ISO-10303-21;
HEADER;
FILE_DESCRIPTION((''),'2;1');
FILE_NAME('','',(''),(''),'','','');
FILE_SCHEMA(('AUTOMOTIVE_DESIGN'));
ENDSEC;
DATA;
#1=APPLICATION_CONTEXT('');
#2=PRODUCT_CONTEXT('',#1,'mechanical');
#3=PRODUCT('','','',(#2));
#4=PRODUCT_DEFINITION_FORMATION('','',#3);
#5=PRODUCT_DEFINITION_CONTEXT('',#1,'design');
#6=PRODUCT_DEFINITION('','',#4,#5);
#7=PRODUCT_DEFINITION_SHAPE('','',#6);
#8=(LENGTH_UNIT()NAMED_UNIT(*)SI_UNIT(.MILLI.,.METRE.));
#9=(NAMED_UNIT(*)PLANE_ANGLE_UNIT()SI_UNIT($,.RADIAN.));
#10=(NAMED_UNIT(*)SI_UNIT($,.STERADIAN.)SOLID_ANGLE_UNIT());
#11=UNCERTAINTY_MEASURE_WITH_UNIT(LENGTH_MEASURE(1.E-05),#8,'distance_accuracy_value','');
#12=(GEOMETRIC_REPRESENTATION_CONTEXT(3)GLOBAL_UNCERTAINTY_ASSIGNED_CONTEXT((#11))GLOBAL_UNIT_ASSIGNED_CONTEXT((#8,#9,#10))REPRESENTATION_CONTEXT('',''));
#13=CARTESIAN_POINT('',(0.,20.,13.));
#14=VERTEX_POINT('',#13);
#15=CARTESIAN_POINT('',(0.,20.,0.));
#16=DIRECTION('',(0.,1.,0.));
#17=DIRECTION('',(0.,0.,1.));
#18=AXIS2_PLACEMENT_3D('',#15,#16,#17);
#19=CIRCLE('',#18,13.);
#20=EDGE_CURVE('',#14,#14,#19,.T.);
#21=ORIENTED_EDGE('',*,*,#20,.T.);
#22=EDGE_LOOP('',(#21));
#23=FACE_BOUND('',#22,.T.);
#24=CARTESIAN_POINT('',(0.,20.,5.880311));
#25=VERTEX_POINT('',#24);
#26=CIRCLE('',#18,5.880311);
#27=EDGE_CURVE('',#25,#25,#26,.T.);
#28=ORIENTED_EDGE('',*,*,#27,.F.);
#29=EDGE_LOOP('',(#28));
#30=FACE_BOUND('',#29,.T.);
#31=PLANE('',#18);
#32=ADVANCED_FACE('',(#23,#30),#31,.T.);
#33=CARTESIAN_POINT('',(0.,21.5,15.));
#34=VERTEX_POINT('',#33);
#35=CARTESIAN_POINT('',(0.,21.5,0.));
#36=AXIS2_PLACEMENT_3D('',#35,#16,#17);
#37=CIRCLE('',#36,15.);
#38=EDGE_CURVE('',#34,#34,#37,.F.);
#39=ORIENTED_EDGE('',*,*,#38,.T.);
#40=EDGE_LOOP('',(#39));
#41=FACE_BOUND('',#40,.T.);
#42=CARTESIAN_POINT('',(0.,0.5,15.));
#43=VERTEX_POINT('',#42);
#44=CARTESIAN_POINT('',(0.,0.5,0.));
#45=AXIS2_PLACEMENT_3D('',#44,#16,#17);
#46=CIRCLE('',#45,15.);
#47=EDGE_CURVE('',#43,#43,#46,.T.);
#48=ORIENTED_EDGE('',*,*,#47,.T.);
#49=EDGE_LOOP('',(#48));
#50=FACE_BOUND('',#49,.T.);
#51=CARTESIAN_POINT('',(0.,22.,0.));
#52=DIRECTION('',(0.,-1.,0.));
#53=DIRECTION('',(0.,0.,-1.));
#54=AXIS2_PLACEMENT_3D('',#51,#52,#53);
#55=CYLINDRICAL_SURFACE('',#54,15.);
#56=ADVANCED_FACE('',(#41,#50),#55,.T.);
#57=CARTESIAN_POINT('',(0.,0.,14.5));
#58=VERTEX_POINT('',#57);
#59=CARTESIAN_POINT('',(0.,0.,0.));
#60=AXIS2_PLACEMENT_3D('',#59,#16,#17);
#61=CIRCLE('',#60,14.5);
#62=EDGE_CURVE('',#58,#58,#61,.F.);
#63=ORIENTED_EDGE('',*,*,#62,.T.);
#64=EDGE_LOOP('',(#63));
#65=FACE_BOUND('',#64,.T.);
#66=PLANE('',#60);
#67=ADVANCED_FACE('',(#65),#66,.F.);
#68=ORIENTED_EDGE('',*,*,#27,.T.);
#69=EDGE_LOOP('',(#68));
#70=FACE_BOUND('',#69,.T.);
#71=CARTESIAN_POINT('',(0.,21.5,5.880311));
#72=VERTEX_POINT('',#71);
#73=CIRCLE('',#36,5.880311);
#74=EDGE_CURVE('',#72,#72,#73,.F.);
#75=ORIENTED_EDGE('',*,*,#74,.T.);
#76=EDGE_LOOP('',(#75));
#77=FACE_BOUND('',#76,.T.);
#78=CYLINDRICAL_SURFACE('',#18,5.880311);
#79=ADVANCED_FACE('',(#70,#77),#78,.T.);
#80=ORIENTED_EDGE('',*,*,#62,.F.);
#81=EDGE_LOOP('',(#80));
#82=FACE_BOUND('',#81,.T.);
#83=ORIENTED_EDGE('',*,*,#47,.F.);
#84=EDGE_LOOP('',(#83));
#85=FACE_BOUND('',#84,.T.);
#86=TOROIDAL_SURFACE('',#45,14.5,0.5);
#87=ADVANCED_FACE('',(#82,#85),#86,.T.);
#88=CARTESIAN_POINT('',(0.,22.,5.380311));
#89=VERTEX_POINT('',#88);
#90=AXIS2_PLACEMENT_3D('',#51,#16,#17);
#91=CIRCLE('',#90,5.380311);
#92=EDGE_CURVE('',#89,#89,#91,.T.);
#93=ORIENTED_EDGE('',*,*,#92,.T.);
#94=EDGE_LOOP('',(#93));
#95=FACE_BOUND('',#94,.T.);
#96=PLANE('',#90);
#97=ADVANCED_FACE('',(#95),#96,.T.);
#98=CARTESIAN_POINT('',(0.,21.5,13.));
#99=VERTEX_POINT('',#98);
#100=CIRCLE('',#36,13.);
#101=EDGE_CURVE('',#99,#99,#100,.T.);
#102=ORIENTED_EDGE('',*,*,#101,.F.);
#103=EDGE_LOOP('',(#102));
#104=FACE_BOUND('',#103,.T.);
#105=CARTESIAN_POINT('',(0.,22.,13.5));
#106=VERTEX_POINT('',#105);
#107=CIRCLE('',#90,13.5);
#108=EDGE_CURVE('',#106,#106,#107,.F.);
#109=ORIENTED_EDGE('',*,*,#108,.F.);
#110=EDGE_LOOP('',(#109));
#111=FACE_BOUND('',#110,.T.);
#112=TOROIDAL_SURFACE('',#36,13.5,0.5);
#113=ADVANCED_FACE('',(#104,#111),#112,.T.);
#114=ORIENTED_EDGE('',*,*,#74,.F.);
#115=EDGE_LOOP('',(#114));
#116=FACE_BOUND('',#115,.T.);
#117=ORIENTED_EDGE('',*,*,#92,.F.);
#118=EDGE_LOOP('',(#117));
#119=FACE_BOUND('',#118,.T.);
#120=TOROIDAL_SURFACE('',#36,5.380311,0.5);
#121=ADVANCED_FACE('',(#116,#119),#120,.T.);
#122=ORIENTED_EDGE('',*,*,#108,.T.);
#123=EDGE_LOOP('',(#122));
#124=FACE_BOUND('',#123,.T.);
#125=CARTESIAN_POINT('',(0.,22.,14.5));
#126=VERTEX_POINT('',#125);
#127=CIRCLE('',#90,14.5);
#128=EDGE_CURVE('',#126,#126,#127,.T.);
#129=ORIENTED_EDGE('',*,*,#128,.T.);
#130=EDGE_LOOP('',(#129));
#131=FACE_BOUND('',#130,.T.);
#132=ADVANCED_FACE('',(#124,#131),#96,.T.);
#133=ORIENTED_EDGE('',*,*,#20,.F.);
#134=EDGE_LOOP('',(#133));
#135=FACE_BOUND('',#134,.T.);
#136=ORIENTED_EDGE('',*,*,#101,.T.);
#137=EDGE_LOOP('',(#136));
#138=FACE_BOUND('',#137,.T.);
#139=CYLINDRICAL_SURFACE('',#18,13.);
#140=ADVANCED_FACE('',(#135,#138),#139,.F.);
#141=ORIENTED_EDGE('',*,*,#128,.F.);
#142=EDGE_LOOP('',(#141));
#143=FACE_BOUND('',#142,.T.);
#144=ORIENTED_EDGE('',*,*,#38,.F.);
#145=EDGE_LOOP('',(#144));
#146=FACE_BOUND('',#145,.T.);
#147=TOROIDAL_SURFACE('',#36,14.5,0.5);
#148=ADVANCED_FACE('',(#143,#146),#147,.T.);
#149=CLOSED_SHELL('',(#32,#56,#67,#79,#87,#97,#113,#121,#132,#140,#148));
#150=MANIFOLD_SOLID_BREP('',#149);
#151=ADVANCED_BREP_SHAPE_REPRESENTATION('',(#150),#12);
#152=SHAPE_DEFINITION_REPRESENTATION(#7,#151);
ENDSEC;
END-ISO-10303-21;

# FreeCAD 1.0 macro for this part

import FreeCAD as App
import Part
import Sketcher
from FreeCAD import Vector


def edges_at(feature, points):
    """Names of the edges that pass closest to the given points."""
    edges = feature.Shape.Edges
    near = lambda p: min(range(len(edges)), key=lambda i: edges[i].distToShape(Part.Vertex(*p))[0])
    return sorted({f"Edge{near(p) + 1}" for p in points})

doc = App.newDocument("Part")
body = doc.addObject("PartDesign::Body", "Body")

sketch1 = doc.addObject("Sketcher::SketchObject", "Sketch")
body.addObject(sketch1)
sketch1.AttachmentSupport = (doc.XZ_Plane, [""])
sketch1.MapMode = "FlatFace"
sketch1.addGeometry(Part.Circle(Vector(0, 0, 0), Vector(0, 0, 1), 15), False)
sketch1.addConstraint([
    Sketcher.Constraint("Coincident", 0, 3, -1, 1),
    Sketcher.Constraint("Diameter", 0, 30.0),
])
pad1 = doc.addObject("PartDesign::Pad", "Pad")
body.addObject(pad1)
pad1.Profile = sketch1
pad1.Length = 22
pad1.Reversed = True

sketch2 = doc.addObject("Sketcher::SketchObject", "Sketch001")
body.addObject(sketch2)
sketch2.AttachmentSupport = (doc.XZ_Plane, [""])
sketch2.MapMode = "FlatFace"
sketch2.AttachmentOffset = App.Placement(Vector(0, 0, -22), App.Rotation())
sketch2.addGeometry([
    Part.Circle(Vector(0, 0, 0), Vector(0, 0, 1), 13),
    Part.Circle(Vector(0, 0, 0), Vector(0, 0, 1), 6),
], False)
sketch2.addConstraint([
    Sketcher.Constraint("Coincident", 0, 3, -1, 1),
    Sketcher.Constraint("Coincident", 1, 3, -1, 1),
    Sketcher.Constraint("Diameter", 0, 26.0),
    Sketcher.Constraint("Diameter", 1, 11.760622),
])
pocket1 = doc.addObject("PartDesign::Pocket", "Pocket")
body.addObject(pocket1)
pocket1.Profile = sketch2
pocket1.Length = 2
pocket1.Reversed = True
doc.recompute()

fillet = doc.addObject("PartDesign::Fillet", "Fillet")
body.addObject(fillet)
fillet.Base = (pocket1, edges_at(pocket1, [
    (0, 0, -15),
    (0, 22, -15),
    (0, 22, -13),
    (0, 22, -5.88),
]))
fillet.Radius = 0.5

doc.recompute()
